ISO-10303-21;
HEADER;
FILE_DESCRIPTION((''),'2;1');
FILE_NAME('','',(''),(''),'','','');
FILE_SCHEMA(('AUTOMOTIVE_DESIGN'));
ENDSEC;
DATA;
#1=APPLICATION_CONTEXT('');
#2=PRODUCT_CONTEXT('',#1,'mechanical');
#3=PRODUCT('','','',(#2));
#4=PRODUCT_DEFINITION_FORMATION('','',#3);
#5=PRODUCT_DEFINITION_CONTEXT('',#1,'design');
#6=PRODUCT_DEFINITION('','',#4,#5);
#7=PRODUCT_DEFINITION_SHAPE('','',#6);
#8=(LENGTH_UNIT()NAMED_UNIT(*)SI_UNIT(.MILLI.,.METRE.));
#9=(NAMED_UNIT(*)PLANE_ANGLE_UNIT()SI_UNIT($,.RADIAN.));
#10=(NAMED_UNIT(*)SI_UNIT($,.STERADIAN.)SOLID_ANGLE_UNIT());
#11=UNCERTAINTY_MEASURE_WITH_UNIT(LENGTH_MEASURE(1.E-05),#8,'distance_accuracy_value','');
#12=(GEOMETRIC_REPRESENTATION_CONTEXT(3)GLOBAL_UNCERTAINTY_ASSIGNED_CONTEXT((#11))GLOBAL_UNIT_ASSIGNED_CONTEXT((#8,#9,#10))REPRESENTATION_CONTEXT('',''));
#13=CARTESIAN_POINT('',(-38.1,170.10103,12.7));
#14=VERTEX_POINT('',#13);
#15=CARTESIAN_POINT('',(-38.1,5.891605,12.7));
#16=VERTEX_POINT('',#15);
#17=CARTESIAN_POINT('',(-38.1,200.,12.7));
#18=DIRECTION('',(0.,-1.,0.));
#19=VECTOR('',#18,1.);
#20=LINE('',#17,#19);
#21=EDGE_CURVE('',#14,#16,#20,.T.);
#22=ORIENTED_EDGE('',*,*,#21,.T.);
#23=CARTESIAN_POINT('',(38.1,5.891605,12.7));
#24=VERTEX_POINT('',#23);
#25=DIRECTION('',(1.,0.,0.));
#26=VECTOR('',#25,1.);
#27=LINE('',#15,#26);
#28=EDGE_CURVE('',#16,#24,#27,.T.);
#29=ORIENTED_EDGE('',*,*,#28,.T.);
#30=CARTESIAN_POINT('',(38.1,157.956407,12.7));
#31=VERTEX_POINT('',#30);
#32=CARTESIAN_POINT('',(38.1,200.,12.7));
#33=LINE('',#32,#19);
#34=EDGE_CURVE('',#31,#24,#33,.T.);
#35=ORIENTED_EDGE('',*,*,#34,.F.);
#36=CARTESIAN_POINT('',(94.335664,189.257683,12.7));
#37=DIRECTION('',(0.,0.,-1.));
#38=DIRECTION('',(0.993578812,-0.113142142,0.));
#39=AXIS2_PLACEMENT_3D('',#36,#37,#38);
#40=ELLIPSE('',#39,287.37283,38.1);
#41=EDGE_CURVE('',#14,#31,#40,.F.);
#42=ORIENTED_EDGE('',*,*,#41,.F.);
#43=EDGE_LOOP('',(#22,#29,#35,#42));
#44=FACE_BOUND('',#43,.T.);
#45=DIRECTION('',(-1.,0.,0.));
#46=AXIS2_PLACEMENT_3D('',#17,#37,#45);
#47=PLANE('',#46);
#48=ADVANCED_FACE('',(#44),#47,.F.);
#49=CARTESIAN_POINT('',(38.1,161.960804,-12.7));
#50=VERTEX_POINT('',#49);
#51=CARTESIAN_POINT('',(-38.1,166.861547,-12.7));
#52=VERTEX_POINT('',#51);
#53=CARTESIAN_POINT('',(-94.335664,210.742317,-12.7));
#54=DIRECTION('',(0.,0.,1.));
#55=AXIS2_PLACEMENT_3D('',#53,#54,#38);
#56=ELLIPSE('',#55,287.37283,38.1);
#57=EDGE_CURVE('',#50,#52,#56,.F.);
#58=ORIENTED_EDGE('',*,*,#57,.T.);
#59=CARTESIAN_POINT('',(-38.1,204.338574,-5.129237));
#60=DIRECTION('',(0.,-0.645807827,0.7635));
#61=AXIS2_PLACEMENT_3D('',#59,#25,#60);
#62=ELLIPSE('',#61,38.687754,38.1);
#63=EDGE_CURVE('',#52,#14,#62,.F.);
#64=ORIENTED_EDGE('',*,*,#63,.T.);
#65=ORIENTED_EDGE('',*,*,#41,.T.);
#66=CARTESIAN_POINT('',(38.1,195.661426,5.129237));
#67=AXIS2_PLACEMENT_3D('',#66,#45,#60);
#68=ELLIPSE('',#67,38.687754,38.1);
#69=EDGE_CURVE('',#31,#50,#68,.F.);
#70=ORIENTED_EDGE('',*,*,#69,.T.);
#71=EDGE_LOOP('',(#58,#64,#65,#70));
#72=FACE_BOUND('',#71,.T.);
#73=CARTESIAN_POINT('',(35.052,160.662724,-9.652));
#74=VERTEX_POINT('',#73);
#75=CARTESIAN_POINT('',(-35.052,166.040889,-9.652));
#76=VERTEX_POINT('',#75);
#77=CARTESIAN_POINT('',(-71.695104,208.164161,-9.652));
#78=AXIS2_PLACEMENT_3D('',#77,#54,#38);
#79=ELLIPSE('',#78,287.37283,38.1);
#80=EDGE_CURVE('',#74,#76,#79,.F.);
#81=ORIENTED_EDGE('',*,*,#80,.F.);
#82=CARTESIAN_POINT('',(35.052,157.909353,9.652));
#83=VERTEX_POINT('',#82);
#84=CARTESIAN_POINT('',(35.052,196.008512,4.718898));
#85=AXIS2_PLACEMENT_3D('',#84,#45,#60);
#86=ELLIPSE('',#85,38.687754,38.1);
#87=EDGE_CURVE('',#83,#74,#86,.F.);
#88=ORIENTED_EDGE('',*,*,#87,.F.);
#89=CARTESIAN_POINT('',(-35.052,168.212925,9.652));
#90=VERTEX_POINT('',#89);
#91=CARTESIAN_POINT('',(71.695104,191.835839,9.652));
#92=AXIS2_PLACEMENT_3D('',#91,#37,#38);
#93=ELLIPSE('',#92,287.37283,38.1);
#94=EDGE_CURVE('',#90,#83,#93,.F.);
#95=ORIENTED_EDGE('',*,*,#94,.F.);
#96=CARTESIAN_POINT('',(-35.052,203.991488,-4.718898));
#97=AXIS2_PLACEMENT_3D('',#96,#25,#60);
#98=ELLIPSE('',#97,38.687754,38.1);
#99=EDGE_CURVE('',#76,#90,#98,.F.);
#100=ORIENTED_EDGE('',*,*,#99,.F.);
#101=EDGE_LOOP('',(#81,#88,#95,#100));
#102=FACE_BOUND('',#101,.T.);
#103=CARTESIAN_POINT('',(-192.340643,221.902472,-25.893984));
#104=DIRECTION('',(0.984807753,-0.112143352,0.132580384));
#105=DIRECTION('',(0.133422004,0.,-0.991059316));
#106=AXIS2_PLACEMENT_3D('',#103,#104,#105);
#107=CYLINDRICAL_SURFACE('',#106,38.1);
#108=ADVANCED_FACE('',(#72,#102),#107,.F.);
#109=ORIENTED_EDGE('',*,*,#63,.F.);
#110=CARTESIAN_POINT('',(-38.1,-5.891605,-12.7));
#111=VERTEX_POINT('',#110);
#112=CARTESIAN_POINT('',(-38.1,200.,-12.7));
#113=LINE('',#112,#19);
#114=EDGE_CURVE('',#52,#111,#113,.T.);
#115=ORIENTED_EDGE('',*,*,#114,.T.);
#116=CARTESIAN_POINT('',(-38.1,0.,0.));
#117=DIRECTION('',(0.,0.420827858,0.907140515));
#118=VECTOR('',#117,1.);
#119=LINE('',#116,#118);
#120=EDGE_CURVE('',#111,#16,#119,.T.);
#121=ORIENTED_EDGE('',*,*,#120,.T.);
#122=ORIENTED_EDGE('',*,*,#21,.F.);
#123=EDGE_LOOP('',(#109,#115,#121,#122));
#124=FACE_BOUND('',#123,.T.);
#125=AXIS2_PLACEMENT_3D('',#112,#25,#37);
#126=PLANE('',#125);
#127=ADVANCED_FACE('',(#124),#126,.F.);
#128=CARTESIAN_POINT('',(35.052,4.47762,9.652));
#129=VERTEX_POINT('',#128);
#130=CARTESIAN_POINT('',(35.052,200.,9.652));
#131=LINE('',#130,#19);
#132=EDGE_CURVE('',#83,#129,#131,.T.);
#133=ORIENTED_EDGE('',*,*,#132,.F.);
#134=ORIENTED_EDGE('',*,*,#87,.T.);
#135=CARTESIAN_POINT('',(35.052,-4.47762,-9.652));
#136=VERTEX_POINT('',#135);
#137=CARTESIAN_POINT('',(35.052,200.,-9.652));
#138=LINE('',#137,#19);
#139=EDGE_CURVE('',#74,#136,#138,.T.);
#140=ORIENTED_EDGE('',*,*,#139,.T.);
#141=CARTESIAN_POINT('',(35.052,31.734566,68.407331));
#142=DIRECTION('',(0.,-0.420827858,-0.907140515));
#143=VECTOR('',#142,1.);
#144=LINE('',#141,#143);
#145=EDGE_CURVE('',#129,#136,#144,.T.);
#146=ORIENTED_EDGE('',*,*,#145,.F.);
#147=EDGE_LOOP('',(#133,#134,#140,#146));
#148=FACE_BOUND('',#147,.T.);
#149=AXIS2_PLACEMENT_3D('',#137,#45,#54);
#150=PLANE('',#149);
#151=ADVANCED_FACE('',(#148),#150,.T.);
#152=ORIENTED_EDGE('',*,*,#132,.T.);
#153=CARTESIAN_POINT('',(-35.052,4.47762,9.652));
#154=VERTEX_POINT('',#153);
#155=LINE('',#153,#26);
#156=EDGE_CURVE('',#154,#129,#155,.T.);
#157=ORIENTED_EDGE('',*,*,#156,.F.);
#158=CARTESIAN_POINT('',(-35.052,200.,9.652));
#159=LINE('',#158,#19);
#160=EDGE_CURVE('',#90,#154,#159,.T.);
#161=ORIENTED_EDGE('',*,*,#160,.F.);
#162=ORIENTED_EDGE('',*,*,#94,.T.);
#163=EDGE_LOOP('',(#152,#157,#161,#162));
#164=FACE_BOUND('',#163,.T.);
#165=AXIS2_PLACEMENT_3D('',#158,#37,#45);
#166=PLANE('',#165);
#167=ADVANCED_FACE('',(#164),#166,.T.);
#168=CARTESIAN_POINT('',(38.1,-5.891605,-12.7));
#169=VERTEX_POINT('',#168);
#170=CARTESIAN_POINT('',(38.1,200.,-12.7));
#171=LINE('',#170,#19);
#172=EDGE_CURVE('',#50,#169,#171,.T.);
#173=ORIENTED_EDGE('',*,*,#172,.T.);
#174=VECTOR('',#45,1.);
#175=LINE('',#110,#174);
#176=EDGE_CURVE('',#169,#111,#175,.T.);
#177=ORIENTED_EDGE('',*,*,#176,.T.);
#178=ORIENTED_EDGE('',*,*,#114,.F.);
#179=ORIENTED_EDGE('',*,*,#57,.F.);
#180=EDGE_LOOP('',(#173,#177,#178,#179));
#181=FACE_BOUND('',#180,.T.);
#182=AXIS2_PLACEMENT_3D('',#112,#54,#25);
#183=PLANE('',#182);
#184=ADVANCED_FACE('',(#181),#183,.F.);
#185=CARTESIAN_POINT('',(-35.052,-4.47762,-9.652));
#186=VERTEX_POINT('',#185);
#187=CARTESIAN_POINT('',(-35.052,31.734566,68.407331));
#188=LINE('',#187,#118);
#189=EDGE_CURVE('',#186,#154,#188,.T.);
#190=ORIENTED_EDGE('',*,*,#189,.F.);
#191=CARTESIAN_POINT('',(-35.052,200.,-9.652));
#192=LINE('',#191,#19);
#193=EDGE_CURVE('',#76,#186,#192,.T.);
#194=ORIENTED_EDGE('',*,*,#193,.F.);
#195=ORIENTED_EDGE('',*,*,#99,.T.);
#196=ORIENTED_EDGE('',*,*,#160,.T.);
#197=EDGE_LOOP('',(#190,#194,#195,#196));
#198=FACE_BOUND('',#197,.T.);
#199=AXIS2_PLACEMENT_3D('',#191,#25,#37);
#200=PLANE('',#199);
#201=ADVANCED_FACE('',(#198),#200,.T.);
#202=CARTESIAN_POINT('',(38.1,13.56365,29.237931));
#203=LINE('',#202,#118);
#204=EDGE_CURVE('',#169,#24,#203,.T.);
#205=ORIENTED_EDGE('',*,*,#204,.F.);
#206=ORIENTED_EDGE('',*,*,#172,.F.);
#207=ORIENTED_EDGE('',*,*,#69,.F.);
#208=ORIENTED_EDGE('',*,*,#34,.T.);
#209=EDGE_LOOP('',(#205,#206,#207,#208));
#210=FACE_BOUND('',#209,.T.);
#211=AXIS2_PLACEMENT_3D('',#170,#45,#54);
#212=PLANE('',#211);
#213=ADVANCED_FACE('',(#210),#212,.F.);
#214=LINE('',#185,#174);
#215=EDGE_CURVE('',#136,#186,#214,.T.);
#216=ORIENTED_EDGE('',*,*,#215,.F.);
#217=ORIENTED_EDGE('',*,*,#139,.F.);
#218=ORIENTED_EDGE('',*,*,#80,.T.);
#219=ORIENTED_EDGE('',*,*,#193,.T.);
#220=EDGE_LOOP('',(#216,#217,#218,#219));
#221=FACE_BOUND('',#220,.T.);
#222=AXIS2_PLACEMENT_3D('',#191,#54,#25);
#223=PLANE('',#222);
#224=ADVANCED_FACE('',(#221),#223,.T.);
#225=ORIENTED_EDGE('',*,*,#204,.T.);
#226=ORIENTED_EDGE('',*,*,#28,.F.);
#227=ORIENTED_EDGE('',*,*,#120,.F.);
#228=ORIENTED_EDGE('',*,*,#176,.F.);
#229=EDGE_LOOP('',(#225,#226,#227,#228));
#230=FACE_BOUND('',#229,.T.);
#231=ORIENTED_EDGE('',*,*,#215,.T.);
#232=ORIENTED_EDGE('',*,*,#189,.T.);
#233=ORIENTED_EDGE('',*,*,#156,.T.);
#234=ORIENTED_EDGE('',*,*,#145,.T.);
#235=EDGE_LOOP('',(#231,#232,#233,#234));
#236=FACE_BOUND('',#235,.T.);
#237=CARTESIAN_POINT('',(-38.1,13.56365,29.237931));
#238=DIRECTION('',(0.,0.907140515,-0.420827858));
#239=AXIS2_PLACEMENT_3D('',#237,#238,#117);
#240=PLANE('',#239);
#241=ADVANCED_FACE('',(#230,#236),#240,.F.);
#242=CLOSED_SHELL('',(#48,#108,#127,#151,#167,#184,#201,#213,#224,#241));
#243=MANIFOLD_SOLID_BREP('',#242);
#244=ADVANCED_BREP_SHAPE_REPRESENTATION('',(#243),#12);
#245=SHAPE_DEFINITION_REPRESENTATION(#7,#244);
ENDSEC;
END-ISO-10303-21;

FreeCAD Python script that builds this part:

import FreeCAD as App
import Part
import Sketcher
from FreeCAD import Vector
Q = App.Units.Quantity

doc = App.newDocument("Part")
params = doc.addObject("Spreadsheet::Sheet", "Params")
for row, (alias, value) in enumerate([
    ("sketch1_width", "3 in"),
    ("sketch1_height", "1 in"),
    ("sketch1_width2", "2.76 in"),
    ("sketch1_height2", "0.76 in"),
    ("pad1_length", "200 mm"),
    ("sketch2_width", "3 in"),
    ("sketch2_height", "1 in"),
    ("sketch2_width2", "2.76 in"),
    ("sketch2_height2", "0.76 in"),
    ("pad2_length", "1.5 in"),
    ("sketch4_diameter", "3 in"),
    ("pocket2_length", "83.124802 mm"),
], start=1):
    params.set(f"A{row}", alias)
    params.set(f"B{row}", "=" + value)
    params.setAlias(f"B{row}", alias)

body = doc.addObject("PartDesign::Body", "Body")

sketch1 = body.newObject("Sketcher::SketchObject", "Sketch")
sketch1.AttachmentSupport = (doc.getObject("XZ_Plane"), [""])
sketch1.MapMode = "FlatFace"
sketch1.addGeometry(Part.LineSegment(Vector(-38.1, -12.7, 0), Vector(-38.1, 12.7, 0)), False)
sketch1.addGeometry(Part.LineSegment(Vector(-38.1, 12.7, 0), Vector(38.1, 12.7, 0)), False)
sketch1.addGeometry(Part.LineSegment(Vector(38.1, 12.7, 0), Vector(38.1, -12.7, 0)), False)
sketch1.addGeometry(Part.LineSegment(Vector(38.1, -12.7, 0), Vector(-38.1, -12.7, 0)), False)
sketch1.addGeometry(Part.LineSegment(Vector(35.052, 9.652, 0), Vector(-35.052, 9.652, 0)), False)
sketch1.addGeometry(Part.LineSegment(Vector(-35.052, 9.652, 0), Vector(-35.052, -9.652, 0)), False)
sketch1.addGeometry(Part.LineSegment(Vector(-35.052, -9.652, 0), Vector(35.052, -9.652, 0)), False)
sketch1.addGeometry(Part.LineSegment(Vector(35.052, -9.652, 0), Vector(35.052, 9.652, 0)), False)
sketch1.addConstraint(Sketcher.Constraint("Coincident", 0, 2, 1, 1))
sketch1.addConstraint(Sketcher.Constraint("Coincident", 1, 2, 2, 1))
sketch1.addConstraint(Sketcher.Constraint("Coincident", 2, 2, 3, 1))
sketch1.addConstraint(Sketcher.Constraint("Coincident", 3, 2, 0, 1))
sketch1.addConstraint(Sketcher.Constraint("Coincident", 4, 2, 5, 1))
sketch1.addConstraint(Sketcher.Constraint("Coincident", 5, 2, 6, 1))
sketch1.addConstraint(Sketcher.Constraint("Coincident", 6, 2, 7, 1))
sketch1.addConstraint(Sketcher.Constraint("Coincident", 7, 2, 4, 1))
sketch1.addConstraint(Sketcher.Constraint("Vertical", 0))
sketch1.addConstraint(Sketcher.Constraint("Horizontal", 1))
sketch1.addConstraint(Sketcher.Constraint("Vertical", 2))
sketch1.addConstraint(Sketcher.Constraint("Horizontal", 3))
sketch1.addConstraint(Sketcher.Constraint("Horizontal", 4))
sketch1.addConstraint(Sketcher.Constraint("Vertical", 5))
sketch1.addConstraint(Sketcher.Constraint("Horizontal", 6))
sketch1.addConstraint(Sketcher.Constraint("Vertical", 7))
sketch1.addConstraint(Sketcher.Constraint("Symmetric", 0, 2, 2, 2, -1, 1))
sketch1.addConstraint(Sketcher.Constraint("Symmetric", 4, 2, 6, 2, -1, 1))
sketch1.addConstraint(Sketcher.Constraint("DistanceX", 1, 1, 1, 2, Q("3 in")))
sketch1.addConstraint(Sketcher.Constraint("DistanceY", 0, 1, 0, 2, Q("1 in")))
sketch1.addConstraint(Sketcher.Constraint("DistanceX", 4, 2, 4, 1, Q("2.76 in")))
sketch1.addConstraint(Sketcher.Constraint("DistanceY", 5, 2, 5, 1, Q("0.76 in")))
sketch1.setExpression("Constraints[18]", "Params.sketch1_width")
sketch1.setExpression("Constraints[19]", "Params.sketch1_height")
sketch1.setExpression("Constraints[20]", "Params.sketch1_width2")
sketch1.setExpression("Constraints[21]", "Params.sketch1_height2")
pad1 = body.newObject("PartDesign::Pad", "Pad")
pad1.Profile = sketch1
pad1.setExpression("Length", "Params.pad1_length")
pad1.Reversed = True

sketch2 = body.newObject("Sketcher::SketchObject", "Sketch001")
sketch2.AttachmentSupport = (doc.getObject("XZ_Plane"), [""])
sketch2.MapMode = "FlatFace"
sketch2.addGeometry(Part.LineSegment(Vector(-38.1, 12.7, 0), Vector(-38.1, -12.7, 0)), False)
sketch2.addGeometry(Part.LineSegment(Vector(-38.1, -12.7, 0), Vector(38.1, -12.7, 0)), False)
sketch2.addGeometry(Part.LineSegment(Vector(38.1, -12.7, 0), Vector(38.1, 12.7, 0)), False)
sketch2.addGeometry(Part.LineSegment(Vector(38.1, 12.7, 0), Vector(-38.1, 12.7, 0)), False)
sketch2.addGeometry(Part.LineSegment(Vector(35.052, -9.652, 0), Vector(-35.052, -9.652, 0)), False)
sketch2.addGeometry(Part.LineSegment(Vector(-35.052, -9.652, 0), Vector(-35.052, 9.652, 0)), False)
sketch2.addGeometry(Part.LineSegment(Vector(-35.052, 9.652, 0), Vector(35.052, 9.652, 0)), False)
sketch2.addGeometry(Part.LineSegment(Vector(35.052, 9.652, 0), Vector(35.052, -9.652, 0)), False)
sketch2.addConstraint(Sketcher.Constraint("Coincident", 0, 2, 1, 1))
sketch2.addConstraint(Sketcher.Constraint("Coincident", 1, 2, 2, 1))
sketch2.addConstraint(Sketcher.Constraint("Coincident", 2, 2, 3, 1))
sketch2.addConstraint(Sketcher.Constraint("Coincident", 3, 2, 0, 1))
sketch2.addConstraint(Sketcher.Constraint("Coincident", 4, 2, 5, 1))
sketch2.addConstraint(Sketcher.Constraint("Coincident", 5, 2, 6, 1))
sketch2.addConstraint(Sketcher.Constraint("Coincident", 6, 2, 7, 1))
sketch2.addConstraint(Sketcher.Constraint("Coincident", 7, 2, 4, 1))
sketch2.addConstraint(Sketcher.Constraint("Vertical", 0))
sketch2.addConstraint(Sketcher.Constraint("Horizontal", 1))
sketch2.addConstraint(Sketcher.Constraint("Vertical", 2))
sketch2.addConstraint(Sketcher.Constraint("Horizontal", 3))
sketch2.addConstraint(Sketcher.Constraint("Horizontal", 4))
sketch2.addConstraint(Sketcher.Constraint("Vertical", 5))
sketch2.addConstraint(Sketcher.Constraint("Horizontal", 6))
sketch2.addConstraint(Sketcher.Constraint("Vertical", 7))
sketch2.addConstraint(Sketcher.Constraint("Symmetric", 0, 2, 2, 2, -1, 1))
sketch2.addConstraint(Sketcher.Constraint("Symmetric", 4, 2, 6, 2, -1, 1))
sketch2.addConstraint(Sketcher.Constraint("DistanceX", 1, 1, 1, 2, Q("3 in")))
sketch2.addConstraint(Sketcher.Constraint("DistanceY", 0, 2, 0, 1, Q("1 in")))
sketch2.addConstraint(Sketcher.Constraint("DistanceX", 4, 2, 4, 1, Q("2.76 in")))
sketch2.addConstraint(Sketcher.Constraint("DistanceY", 5, 1, 5, 2, Q("0.76 in")))
sketch2.setExpression("Constraints[18]", "Params.sketch2_width")
sketch2.setExpression("Constraints[19]", "Params.sketch2_height")
sketch2.setExpression("Constraints[20]", "Params.sketch2_width2")
sketch2.setExpression("Constraints[21]", "Params.sketch2_height2")
pad2 = body.newObject("PartDesign::Pad", "Pad001")
pad2.Profile = sketch2
pad2.setExpression("Length", "Params.pad2_length")

sketch3 = body.newObject("Sketcher::SketchObject", "Sketch002")
sketch3.AttachmentSupport = (doc.getObject("YZ_Plane"), [""])
sketch3.MapMode = "FlatFace"
sketch3.AttachmentOffset = App.Placement(Vector(0, 0, 1.5 * 25.4), App.Rotation())
sketch3.addGeometry(Part.LineSegment(Vector(-43.348459, 27.756395, 0), Vector(-61.959923, -21.220804, 0)), False)
sketch3.addGeometry(Part.LineSegment(Vector(-61.959923, -21.220804, 0), Vector(-33.096385, -71.342881, 0)), False)
sketch3.addGeometry(Part.LineSegment(Vector(-33.096385, -71.342881, 0), Vector(0, 0, 0)), False)
sketch3.addGeometry(Part.LineSegment(Vector(0, 0, 0), Vector(13.56365, 29.237931, 0)), False)
sketch3.addGeometry(Part.LineSegment(Vector(13.56365, 29.237931, 0), Vector(-43.348459, 27.756395, 0)), False)
sketch3.addConstraint(Sketcher.Constraint("Coincident", 0, 2, 1, 1))
sketch3.addConstraint(Sketcher.Constraint("Coincident", 1, 2, 2, 1))
sketch3.addConstraint(Sketcher.Constraint("Coincident", 2, 2, 3, 1))
sketch3.addConstraint(Sketcher.Constraint("Coincident", 3, 2, 4, 1))
sketch3.addConstraint(Sketcher.Constraint("Coincident", 4, 2, 0, 1))
sketch3.addConstraint(Sketcher.Constraint("Coincident", 2, 2, -1, 1))
sketch3.addConstraint(Sketcher.Constraint("Parallel", 2, 3))
sketch3.addConstraint(Sketcher.Constraint("Distance", 2, Q("78.645898 mm")))
sketch3.addConstraint(Sketcher.Constraint("DistanceY", 0, 2, 4, 2, Q("48.977199 mm")))
sketch3.addConstraint(Sketcher.Constraint("Distance", 4, Q("56.931389 mm")))
sketch3.addConstraint(Sketcher.Constraint("DistanceY", 1, 2, -1, 1, Q("71.342881 mm")))
sketch3.addConstraint(Sketcher.Constraint("DistanceX", -1, 1, 3, 2, Q("13.56365 mm")))
sketch3.addConstraint(Sketcher.Constraint("DistanceX", 4, 2, -1, 1, Q("43.348459 mm")))
sketch3.addConstraint(Sketcher.Constraint("Distance", 0, Q("52.394204 mm")))
pocket1 = body.newObject("PartDesign::Pocket", "Pocket")
pocket1.Profile = sketch3
pocket1.Type = "ThroughAll"

sketch4 = body.newObject("Sketcher::SketchObject", "Sketch003")
sketch4.Placement = App.Placement(Vector(43.252615, 195.07468, 5.822911), App.Rotation(Vector(-0.131571603, 0.016382038, 0.991171298), Vector(0.113325209, 0.993556992, -0.001378277), Vector(-0.984807753, 0.112143352, -0.132580384), "ZXY"))
sketch4.addGeometry(Part.Circle(Vector(0, 0, 0), Vector(0, 0, 1), 38.1), False)
sketch4.addConstraint(Sketcher.Constraint("Coincident", 0, 3, -1, 1))
sketch4.addConstraint(Sketcher.Constraint("Diameter", 0, Q("3 in")))
sketch4.setExpression("Constraints[1]", "Params.sketch4_diameter")
pocket2 = body.newObject("PartDesign::Pocket", "Pocket001")
pocket2.Profile = sketch4
pocket2.setExpression("Length", "Params.pocket2_length")
pocket2.Reversed = True

doc.recompute()
